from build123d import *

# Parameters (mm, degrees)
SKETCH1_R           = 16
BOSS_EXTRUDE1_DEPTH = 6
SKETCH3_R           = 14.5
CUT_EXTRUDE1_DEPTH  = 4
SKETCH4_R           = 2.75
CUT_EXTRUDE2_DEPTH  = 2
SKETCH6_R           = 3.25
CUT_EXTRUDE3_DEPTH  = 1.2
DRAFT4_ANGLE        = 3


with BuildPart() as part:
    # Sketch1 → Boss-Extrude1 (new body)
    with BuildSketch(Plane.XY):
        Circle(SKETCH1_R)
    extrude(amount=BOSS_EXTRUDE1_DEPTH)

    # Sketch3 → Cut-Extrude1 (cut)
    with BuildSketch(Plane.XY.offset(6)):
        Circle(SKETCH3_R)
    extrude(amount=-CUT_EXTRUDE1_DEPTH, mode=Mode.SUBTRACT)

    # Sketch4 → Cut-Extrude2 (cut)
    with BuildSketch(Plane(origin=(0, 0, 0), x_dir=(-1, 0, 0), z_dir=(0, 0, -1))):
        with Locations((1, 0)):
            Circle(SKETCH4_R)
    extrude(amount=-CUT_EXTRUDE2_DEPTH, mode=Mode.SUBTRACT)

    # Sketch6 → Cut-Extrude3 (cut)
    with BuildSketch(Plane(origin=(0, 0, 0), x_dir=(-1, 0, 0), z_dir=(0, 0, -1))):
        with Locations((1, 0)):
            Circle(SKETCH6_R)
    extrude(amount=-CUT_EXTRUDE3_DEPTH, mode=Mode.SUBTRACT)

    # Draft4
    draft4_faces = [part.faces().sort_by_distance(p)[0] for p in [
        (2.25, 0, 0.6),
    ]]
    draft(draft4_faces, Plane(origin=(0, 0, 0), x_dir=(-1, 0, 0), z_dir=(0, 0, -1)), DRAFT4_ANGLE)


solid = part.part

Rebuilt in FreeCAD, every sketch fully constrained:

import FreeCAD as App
import Part
import Sketcher

V = App.Vector


def faces_at(feature, points):
    """Names of the faces that lie closest to the given points."""
    faces = feature.Shape.Faces
    near = lambda p: min(range(len(faces)), key=lambda i: faces[i].distToShape(Part.Vertex(*p))[0])
    return sorted({f"Face{near(p) + 1}" for p in points})

doc = App.newDocument("Part")
body = doc.addObject("PartDesign::Body", "Body")

# Sketch on XY plane
sketch1 = doc.addObject("Sketcher::SketchObject", "Sketch")
body.addObject(sketch1)
sketch1.AttachmentSupport = (doc.XY_Plane, [""])
sketch1.MapMode = "FlatFace"
sketch1.addGeometry(Part.Circle(V(0, 0, 0), V(0, 0, 1), 16), False)
sketch1.addConstraint([
    Sketcher.Constraint("Coincident", 0, 3, -1, 1),
    Sketcher.Constraint("Diameter", 0, 32.0),
])
pad1 = doc.addObject("PartDesign::Pad", "Pad")
body.addObject(pad1)
pad1.Profile = sketch1
pad1.Length = 6

# Sketch on XY plane
sketch2 = doc.addObject("Sketcher::SketchObject", "Sketch001")
body.addObject(sketch2)
sketch2.AttachmentSupport = (doc.XY_Plane, [""])
sketch2.MapMode = "FlatFace"
sketch2.AttachmentOffset = App.Placement(V(0, 0, 6), App.Rotation())
sketch2.addGeometry(Part.Circle(V(0, 0, 0), V(0, 0, 1), 14), False)
sketch2.addConstraint([
    Sketcher.Constraint("Coincident", 0, 3, -1, 1),
    Sketcher.Constraint("Diameter", 0, 29.0),
])
pocket1 = doc.addObject("PartDesign::Pocket", "Pocket")
body.addObject(pocket1)
pocket1.Profile = sketch2
pocket1.Length = 4

# Sketch on XY plane
sketch3 = doc.addObject("Sketcher::SketchObject", "Sketch002")
body.addObject(sketch3)
sketch3.AttachmentSupport = (doc.XY_Plane, [""])
sketch3.MapMode = "FlatFace"
sketch3.addGeometry(Part.Circle(V(-1, 0, 0), V(0, 0, 1), 2.8), False)
sketch3.addConstraint([
    Sketcher.Constraint("PointOnObject", 0, 3, -1),
    Sketcher.Constraint("Diameter", 0, 5.5),
    Sketcher.Constraint("DistanceX", 0, 3, -1, 1, 1.0),
])
pocket2 = doc.addObject("PartDesign::Pocket", "Pocket001")
body.addObject(pocket2)
pocket2.Profile = sketch3
pocket2.Length = 2
pocket2.Reversed = True

# Sketch on XY plane
sketch4 = doc.addObject("Sketcher::SketchObject", "Sketch003")
body.addObject(sketch4)
sketch4.AttachmentSupport = (doc.XY_Plane, [""])
sketch4.MapMode = "FlatFace"
sketch4.addGeometry(Part.Circle(V(-1, 0, 0), V(0, 0, 1), 3.2), False)
sketch4.addConstraint([
    Sketcher.Constraint("PointOnObject", 0, 3, -1),
    Sketcher.Constraint("Diameter", 0, 6.5),
    Sketcher.Constraint("DistanceX", 0, 3, -1, 1, 1.0),
])
pocket3 = doc.addObject("PartDesign::Pocket", "Pocket002")
body.addObject(pocket3)
pocket3.Profile = sketch4
pocket3.Length = 1.2
pocket3.Reversed = True
doc.recompute()

draft = doc.addObject("PartDesign::Draft", "Draft")
body.addObject(draft)
draft.Base = (pocket3, faces_at(pocket3, [(2.25, 0, 0.6)]))
draft.NeutralPlane = (doc.XY_Plane, [""])
draft.Angle = 3
draft.Reversed = True

doc.recompute()
